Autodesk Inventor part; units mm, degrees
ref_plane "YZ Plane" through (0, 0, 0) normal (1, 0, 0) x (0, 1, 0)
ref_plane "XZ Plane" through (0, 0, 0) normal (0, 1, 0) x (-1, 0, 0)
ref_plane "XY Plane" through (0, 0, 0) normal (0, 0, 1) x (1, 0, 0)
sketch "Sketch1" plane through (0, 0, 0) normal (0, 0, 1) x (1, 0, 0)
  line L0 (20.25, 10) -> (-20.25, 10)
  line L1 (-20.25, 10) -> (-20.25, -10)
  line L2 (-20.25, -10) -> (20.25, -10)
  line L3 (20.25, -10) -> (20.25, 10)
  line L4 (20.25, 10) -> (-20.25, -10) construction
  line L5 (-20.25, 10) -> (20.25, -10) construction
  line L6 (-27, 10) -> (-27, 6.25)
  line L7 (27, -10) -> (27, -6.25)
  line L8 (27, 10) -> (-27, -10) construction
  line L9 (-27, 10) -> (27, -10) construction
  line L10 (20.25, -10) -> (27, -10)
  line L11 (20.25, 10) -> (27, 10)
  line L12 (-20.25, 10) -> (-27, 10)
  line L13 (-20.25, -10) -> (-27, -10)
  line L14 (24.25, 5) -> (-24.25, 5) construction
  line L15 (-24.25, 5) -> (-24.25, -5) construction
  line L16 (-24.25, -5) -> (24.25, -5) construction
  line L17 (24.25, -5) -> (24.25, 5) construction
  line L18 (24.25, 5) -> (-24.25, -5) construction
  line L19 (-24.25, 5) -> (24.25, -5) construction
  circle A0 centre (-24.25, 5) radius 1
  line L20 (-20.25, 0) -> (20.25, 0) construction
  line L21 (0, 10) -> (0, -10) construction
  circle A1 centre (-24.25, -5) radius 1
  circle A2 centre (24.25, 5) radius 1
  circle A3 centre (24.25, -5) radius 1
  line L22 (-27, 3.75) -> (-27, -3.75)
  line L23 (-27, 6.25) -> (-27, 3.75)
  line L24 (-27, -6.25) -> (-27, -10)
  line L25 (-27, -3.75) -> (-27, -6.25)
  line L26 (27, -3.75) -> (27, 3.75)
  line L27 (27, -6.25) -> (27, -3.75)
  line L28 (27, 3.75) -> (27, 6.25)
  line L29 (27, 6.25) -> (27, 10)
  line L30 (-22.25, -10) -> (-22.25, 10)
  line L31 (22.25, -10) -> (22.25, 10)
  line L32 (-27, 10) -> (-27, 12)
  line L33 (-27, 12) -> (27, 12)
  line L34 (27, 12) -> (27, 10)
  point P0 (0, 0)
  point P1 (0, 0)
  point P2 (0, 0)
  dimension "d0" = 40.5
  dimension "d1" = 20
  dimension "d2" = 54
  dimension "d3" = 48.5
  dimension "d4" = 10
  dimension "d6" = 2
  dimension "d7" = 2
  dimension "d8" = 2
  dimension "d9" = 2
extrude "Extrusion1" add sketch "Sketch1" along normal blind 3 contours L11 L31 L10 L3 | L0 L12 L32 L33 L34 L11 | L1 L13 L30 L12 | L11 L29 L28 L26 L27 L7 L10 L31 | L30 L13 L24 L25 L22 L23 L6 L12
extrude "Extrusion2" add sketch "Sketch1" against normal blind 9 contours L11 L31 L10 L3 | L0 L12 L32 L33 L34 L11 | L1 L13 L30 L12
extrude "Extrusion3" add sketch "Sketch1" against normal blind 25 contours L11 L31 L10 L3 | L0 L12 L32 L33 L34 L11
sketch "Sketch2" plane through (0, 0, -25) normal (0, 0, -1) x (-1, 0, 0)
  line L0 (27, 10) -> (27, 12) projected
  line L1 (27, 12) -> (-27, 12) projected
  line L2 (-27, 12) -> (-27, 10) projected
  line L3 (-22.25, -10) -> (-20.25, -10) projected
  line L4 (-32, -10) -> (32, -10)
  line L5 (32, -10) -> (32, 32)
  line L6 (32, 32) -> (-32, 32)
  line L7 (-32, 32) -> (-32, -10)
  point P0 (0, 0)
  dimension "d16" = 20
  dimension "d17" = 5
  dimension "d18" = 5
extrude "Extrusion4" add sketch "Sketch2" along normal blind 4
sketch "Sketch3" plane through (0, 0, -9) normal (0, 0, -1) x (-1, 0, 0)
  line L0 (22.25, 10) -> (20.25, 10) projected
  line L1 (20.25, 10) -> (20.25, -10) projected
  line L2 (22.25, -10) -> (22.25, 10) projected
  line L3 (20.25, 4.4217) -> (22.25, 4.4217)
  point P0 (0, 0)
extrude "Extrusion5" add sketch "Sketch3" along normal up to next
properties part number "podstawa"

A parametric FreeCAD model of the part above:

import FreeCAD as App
import Part
import Sketcher

V = App.Vector

doc = App.newDocument("Part")
body = doc.addObject("PartDesign::Body", "Body")

# Sketch on XY plane
sketch1 = doc.addObject("Sketcher::SketchObject", "Sketch")
body.addObject(sketch1)
sketch1.AttachmentSupport = (doc.XY_Plane, [""])
sketch1.MapMode = "FlatFace"
sketch1.addGeometry([
    Part.LineSegment(V(20.2, -10, 0), V(27, -10, 0)),  # 0
    Part.LineSegment(V(27, -10, 0), V(27, 12, 0)),  # 1
    Part.LineSegment(V(27, 12, 0), V(-27, 12, 0)),  # 2
    Part.LineSegment(V(-27, 12, 0), V(-27, -10, 0)),  # 3
    Part.LineSegment(V(-27, -10, 0), V(-20.2, -10, 0)),  # 4
    Part.LineSegment(V(-20.2, -10, 0), V(-20.2, 10, 0)),  # 5
    Part.LineSegment(V(-20.2, 10, 0), V(20.2, 10, 0)),  # 6
    Part.LineSegment(V(20.2, 10, 0), V(20.2, -10, 0)),  # 7
    Part.Circle(V(24.2, -5, 0), V(0, 0, 1), 1),  # 8
    Part.Circle(V(24.2, 5, 0), V(0, 0, 1), 1),  # 9
    Part.Circle(V(-24.2, -5, 0), V(0, 0, 1), 1),  # 10
    Part.Circle(V(-24.2, 5, 0), V(0, 0, 1), 1),  # 11
], False)
sketch1.addConstraint([
    Sketcher.Constraint("Coincident", 0, 2, 1, 1),
    Sketcher.Constraint("Coincident", 1, 2, 2, 1),
    Sketcher.Constraint("Coincident", 2, 2, 3, 1),
    Sketcher.Constraint("Coincident", 3, 2, 4, 1),
    Sketcher.Constraint("Coincident", 4, 2, 5, 1),
    Sketcher.Constraint("Coincident", 5, 2, 6, 1),
    Sketcher.Constraint("Coincident", 6, 2, 7, 1),
    Sketcher.Constraint("Coincident", 7, 2, 0, 1),
    Sketcher.Constraint("Horizontal", 0),
    Sketcher.Constraint("Vertical", 1),
    Sketcher.Constraint("Horizontal", 2),
    Sketcher.Constraint("Vertical", 3),
    Sketcher.Constraint("Horizontal", 4),
    Sketcher.Constraint("Vertical", 5),
    Sketcher.Constraint("Horizontal", 6),
    Sketcher.Constraint("Vertical", 7),
    Sketcher.Constraint("Equal", 8, 9),
    Sketcher.Constraint("Equal", 9, 10),
    Sketcher.Constraint("Equal", 10, 11),
    Sketcher.Constraint("Symmetric", 9, 3, 10, 3, -1, 1),
    Sketcher.Constraint("Symmetric", 8, 3, 11, 3, -1, 1),
    Sketcher.Constraint("Symmetric", 4, 2, 6, 2, -1, 1),
    Sketcher.Constraint("Symmetric", 8, 3, 10, 3, -2),
    Sketcher.Constraint("Symmetric", 0, 2, 3, 2, -2),
    Sketcher.Constraint("Diameter", 8, 2.0),
    Sketcher.Constraint("DistanceX", 2, 2, 2, 1, 54.0),
    Sketcher.Constraint("DistanceY", 5, 1, 5, 2, 20.0),
    Sketcher.Constraint("DistanceX", 6, 1, 6, 2, 40.5),
    Sketcher.Constraint("DistanceY", 8, 3, 9, 3, 10.0),
    Sketcher.Constraint("DistanceY", 5, 2, 2, 2, 2.0),
    Sketcher.Constraint("DistanceX", 10, 3, 8, 3, 48.5),
])
pad1 = doc.addObject("PartDesign::Pad", "Pad")
body.addObject(pad1)
pad1.Profile = sketch1
pad1.Length = 3

# Sketch on XY plane
sketch2 = doc.addObject("Sketcher::SketchObject", "Sketch001")
body.addObject(sketch2)
sketch2.AttachmentSupport = (doc.XY_Plane, [""])
sketch2.MapMode = "FlatFace"
sketch2.addGeometry([
    Part.LineSegment(V(22.2, -10, 0), V(22.2, 10, 0)),  # 0
    Part.LineSegment(V(22.2, 10, 0), V(27, 10, 0)),  # 1
    Part.LineSegment(V(27, 10, 0), V(27, 12, 0)),  # 2
    Part.LineSegment(V(27, 12, 0), V(-27, 12, 0)),  # 3
    Part.LineSegment(V(-27, 12, 0), V(-27, 10, 0)),  # 4
    Part.LineSegment(V(-27, 10, 0), V(-22.2, 10, 0)),  # 5
    Part.LineSegment(V(-22.2, 10, 0), V(-22.2, -10, 0)),  # 6
    Part.LineSegment(V(-22.2, -10, 0), V(-20.2, -10, 0)),  # 7
    Part.LineSegment(V(-20.2, -10, 0), V(-20.2, 10, 0)),  # 8
    Part.LineSegment(V(-20.2, 10, 0), V(20.2, 10, 0)),  # 9
    Part.LineSegment(V(20.2, 10, 0), V(20.2, -10, 0)),  # 10
    Part.LineSegment(V(20.2, -10, 0), V(22.2, -10, 0)),  # 11
], False)
sketch2.addConstraint([
    Sketcher.Constraint("Coincident", 0, 2, 1, 1),
    Sketcher.Constraint("Coincident", 1, 2, 2, 1),
    Sketcher.Constraint("Coincident", 2, 2, 3, 1),
    Sketcher.Constraint("Coincident", 3, 2, 4, 1),
    Sketcher.Constraint("Coincident", 4, 2, 5, 1),
    Sketcher.Constraint("Coincident", 5, 2, 6, 1),
    Sketcher.Constraint("Coincident", 6, 2, 7, 1),
    Sketcher.Constraint("Coincident", 7, 2, 8, 1),
    Sketcher.Constraint("Coincident", 8, 2, 9, 1),
    Sketcher.Constraint("Coincident", 9, 2, 10, 1),
    Sketcher.Constraint("Coincident", 10, 2, 11, 1),
    Sketcher.Constraint("Coincident", 11, 2, 0, 1),
    Sketcher.Constraint("Vertical", 0),
    Sketcher.Constraint("Horizontal", 1),
    Sketcher.Constraint("Vertical", 2),
    Sketcher.Constraint("Horizontal", 3),
    Sketcher.Constraint("Vertical", 4),
    Sketcher.Constraint("Horizontal", 5),
    Sketcher.Constraint("Vertical", 6),
    Sketcher.Constraint("Horizontal", 7),
    Sketcher.Constraint("Vertical", 8),
    Sketcher.Constraint("Horizontal", 9),
    Sketcher.Constraint("Vertical", 10),
    Sketcher.Constraint("Horizontal", 11),
    Sketcher.Constraint("Symmetric", 0, 2, 6, 2, -1, 1),
    Sketcher.Constraint("Symmetric", 7, 2, 9, 2, -1, 1),
    Sketcher.Constraint("Symmetric", 1, 2, 4, 2, -2),
    Sketcher.Constraint("Horizontal", 7, 2, 10, 2),
    Sketcher.Constraint("Equal", 11, 2),
    Sketcher.Constraint("DistanceX", 3, 2, 3, 1, 54.0),
    Sketcher.Constraint("DistanceX", 7, 1, 7, 2, 2.0),
    Sketcher.Constraint("DistanceY", 0, 1, 0, 2, 20.0),
    Sketcher.Constraint("DistanceX", 9, 1, 9, 2, 40.5),
])
pad2 = doc.addObject("PartDesign::Pad", "Pad001")
body.addObject(pad2)
pad2.Profile = sketch2
pad2.Length = 9
pad2.Reversed = True

# Sketch on XY plane
sketch3 = doc.addObject("Sketcher::SketchObject", "Sketch002")
body.addObject(sketch3)
sketch3.AttachmentSupport = (doc.XY_Plane, [""])
sketch3.MapMode = "FlatFace"
sketch3.addGeometry([
    Part.LineSegment(V(22.2, -10, 0), V(22.2, 10, 0)),  # 0
    Part.LineSegment(V(22.2, 10, 0), V(27, 10, 0)),  # 1
    Part.LineSegment(V(27, 10, 0), V(27, 12, 0)),  # 2
    Part.LineSegment(V(27, 12, 0), V(-27, 12, 0)),  # 3
    Part.LineSegment(V(-27, 12, 0), V(-27, 10, 0)),  # 4
    Part.LineSegment(V(-27, 10, 0), V(20.2, 10, 0)),  # 5
    Part.LineSegment(V(20.2, 10, 0), V(20.2, -10, 0)),  # 6
    Part.LineSegment(V(20.2, -10, 0), V(22.2, -10, 0)),  # 7
], False)
sketch3.addConstraint([
    Sketcher.Constraint("Coincident", 0, 2, 1, 1),
    Sketcher.Constraint("Coincident", 1, 2, 2, 1),
    Sketcher.Constraint("Coincident", 2, 2, 3, 1),
    Sketcher.Constraint("Coincident", 3, 2, 4, 1),
    Sketcher.Constraint("Coincident", 4, 2, 5, 1),
    Sketcher.Constraint("Coincident", 5, 2, 6, 1),
    Sketcher.Constraint("Coincident", 6, 2, 7, 1),
    Sketcher.Constraint("Coincident", 7, 2, 0, 1),
    Sketcher.Constraint("Vertical", 0),
    Sketcher.Constraint("Horizontal", 1),
    Sketcher.Constraint("Vertical", 2),
    Sketcher.Constraint("Horizontal", 3),
    Sketcher.Constraint("Vertical", 4),
    Sketcher.Constraint("Horizontal", 5),
    Sketcher.Constraint("Vertical", 6),
    Sketcher.Constraint("Horizontal", 7),
    Sketcher.Constraint("Symmetric", 1, 2, 4, 2, -2),
    Sketcher.Constraint("Equal", 7, 2),
    Sketcher.Constraint("DistanceX", 3, 2, 3, 1, 54.0),
    Sketcher.Constraint("DistanceX", 7, 1, 7, 2, 2.0),
    Sketcher.Constraint("DistanceY", 0, 1, 0, 2, 20.0),
    Sketcher.Constraint("DistanceY", -1, 1, 0, 2, 10.0),
    Sketcher.Constraint("DistanceX", 1, 1, 1, 2, 4.75),
])
pad3 = doc.addObject("PartDesign::Pad", "Pad002")
body.addObject(pad3)
pad3.Profile = sketch3
pad3.Length = 25
pad3.Reversed = True

# Sketch on XY plane
sketch4 = doc.addObject("Sketcher::SketchObject", "Sketch003")
body.addObject(sketch4)
sketch4.AttachmentSupport = (doc.XY_Plane, [""])
sketch4.MapMode = "FlatFace"
sketch4.AttachmentOffset = App.Placement(V(0, 0, -25), App.Rotation())
sketch4.addGeometry([
    Part.LineSegment(V(32, -10, 0), V(-32, -10, 0)),
    Part.LineSegment(V(-32, -10, 0), V(-32, 32, 0)),
    Part.LineSegment(V(-32, 32, 0), V(32, 32, 0)),
    Part.LineSegment(V(32, 32, 0), V(32, -10, 0)),
], False)
sketch4.addConstraint([
    Sketcher.Constraint("Coincident", 0, 2, 1, 1),
    Sketcher.Constraint("Coincident", 1, 2, 2, 1),
    Sketcher.Constraint("Coincident", 2, 2, 3, 1),
    Sketcher.Constraint("Coincident", 3, 2, 0, 1),
    Sketcher.Constraint("Horizontal", 0),
    Sketcher.Constraint("Vertical", 1),
    Sketcher.Constraint("Horizontal", 2),
    Sketcher.Constraint("Vertical", 3),
    Sketcher.Constraint("DistanceX", 0, 2, 0, 1, 64.0),
    Sketcher.Constraint("DistanceY", 1, 1, 1, 2, 42.0),
    Sketcher.Constraint("DistanceX", 0, 2, -1, 1, 32.0),
    Sketcher.Constraint("DistanceY", 0, 2, -1, 1, 10.0),
])
pad4 = doc.addObject("PartDesign::Pad", "Pad003")
body.addObject(pad4)
pad4.Profile = sketch4
pad4.Length = 4
pad4.Reversed = True

# Sketch on XY plane
sketch5 = doc.addObject("Sketcher::SketchObject", "Sketch004")
body.addObject(sketch5)
sketch5.AttachmentSupport = (doc.XY_Plane, [""])
sketch5.MapMode = "FlatFace"
sketch5.AttachmentOffset = App.Placement(V(0, 0, -9), App.Rotation())
sketch5.addGeometry([
    Part.LineSegment(V(-22.2, 4.4, 0), V(-22.2, 10, 0)),
    Part.LineSegment(V(-22.2, 10, 0), V(-20.2, 10, 0)),
    Part.LineSegment(V(-20.2, 10, 0), V(-20.2, 4.4, 0)),
    Part.LineSegment(V(-20.2, 4.4, 0), V(-22.2, 4.4, 0)),
], False)
sketch5.addConstraint([
    Sketcher.Constraint("Coincident", 0, 2, 1, 1),
    Sketcher.Constraint("Coincident", 1, 2, 2, 1),
    Sketcher.Constraint("Coincident", 2, 2, 3, 1),
    Sketcher.Constraint("Coincident", 3, 2, 0, 1),
    Sketcher.Constraint("Vertical", 0),
    Sketcher.Constraint("Horizontal", 1),
    Sketcher.Constraint("Vertical", 2),
    Sketcher.Constraint("Horizontal", 3),
    Sketcher.Constraint("DistanceX", 1, 1, 1, 2, 2.0),
    Sketcher.Constraint("DistanceY", -1, 1, 0, 2, 10.0),
    Sketcher.Constraint("DistanceX", 0, 2, -1, 1, 22.25),
    Sketcher.Constraint("DistanceY", 0, 1, 0, 2, 5.5783),
])
pad5 = doc.addObject("PartDesign::Pad", "Pad004")
body.addObject(pad5)
pad5.Profile = sketch5
pad5.Type = "UpToFirst"
pad5.Reversed = True

doc.recompute()
